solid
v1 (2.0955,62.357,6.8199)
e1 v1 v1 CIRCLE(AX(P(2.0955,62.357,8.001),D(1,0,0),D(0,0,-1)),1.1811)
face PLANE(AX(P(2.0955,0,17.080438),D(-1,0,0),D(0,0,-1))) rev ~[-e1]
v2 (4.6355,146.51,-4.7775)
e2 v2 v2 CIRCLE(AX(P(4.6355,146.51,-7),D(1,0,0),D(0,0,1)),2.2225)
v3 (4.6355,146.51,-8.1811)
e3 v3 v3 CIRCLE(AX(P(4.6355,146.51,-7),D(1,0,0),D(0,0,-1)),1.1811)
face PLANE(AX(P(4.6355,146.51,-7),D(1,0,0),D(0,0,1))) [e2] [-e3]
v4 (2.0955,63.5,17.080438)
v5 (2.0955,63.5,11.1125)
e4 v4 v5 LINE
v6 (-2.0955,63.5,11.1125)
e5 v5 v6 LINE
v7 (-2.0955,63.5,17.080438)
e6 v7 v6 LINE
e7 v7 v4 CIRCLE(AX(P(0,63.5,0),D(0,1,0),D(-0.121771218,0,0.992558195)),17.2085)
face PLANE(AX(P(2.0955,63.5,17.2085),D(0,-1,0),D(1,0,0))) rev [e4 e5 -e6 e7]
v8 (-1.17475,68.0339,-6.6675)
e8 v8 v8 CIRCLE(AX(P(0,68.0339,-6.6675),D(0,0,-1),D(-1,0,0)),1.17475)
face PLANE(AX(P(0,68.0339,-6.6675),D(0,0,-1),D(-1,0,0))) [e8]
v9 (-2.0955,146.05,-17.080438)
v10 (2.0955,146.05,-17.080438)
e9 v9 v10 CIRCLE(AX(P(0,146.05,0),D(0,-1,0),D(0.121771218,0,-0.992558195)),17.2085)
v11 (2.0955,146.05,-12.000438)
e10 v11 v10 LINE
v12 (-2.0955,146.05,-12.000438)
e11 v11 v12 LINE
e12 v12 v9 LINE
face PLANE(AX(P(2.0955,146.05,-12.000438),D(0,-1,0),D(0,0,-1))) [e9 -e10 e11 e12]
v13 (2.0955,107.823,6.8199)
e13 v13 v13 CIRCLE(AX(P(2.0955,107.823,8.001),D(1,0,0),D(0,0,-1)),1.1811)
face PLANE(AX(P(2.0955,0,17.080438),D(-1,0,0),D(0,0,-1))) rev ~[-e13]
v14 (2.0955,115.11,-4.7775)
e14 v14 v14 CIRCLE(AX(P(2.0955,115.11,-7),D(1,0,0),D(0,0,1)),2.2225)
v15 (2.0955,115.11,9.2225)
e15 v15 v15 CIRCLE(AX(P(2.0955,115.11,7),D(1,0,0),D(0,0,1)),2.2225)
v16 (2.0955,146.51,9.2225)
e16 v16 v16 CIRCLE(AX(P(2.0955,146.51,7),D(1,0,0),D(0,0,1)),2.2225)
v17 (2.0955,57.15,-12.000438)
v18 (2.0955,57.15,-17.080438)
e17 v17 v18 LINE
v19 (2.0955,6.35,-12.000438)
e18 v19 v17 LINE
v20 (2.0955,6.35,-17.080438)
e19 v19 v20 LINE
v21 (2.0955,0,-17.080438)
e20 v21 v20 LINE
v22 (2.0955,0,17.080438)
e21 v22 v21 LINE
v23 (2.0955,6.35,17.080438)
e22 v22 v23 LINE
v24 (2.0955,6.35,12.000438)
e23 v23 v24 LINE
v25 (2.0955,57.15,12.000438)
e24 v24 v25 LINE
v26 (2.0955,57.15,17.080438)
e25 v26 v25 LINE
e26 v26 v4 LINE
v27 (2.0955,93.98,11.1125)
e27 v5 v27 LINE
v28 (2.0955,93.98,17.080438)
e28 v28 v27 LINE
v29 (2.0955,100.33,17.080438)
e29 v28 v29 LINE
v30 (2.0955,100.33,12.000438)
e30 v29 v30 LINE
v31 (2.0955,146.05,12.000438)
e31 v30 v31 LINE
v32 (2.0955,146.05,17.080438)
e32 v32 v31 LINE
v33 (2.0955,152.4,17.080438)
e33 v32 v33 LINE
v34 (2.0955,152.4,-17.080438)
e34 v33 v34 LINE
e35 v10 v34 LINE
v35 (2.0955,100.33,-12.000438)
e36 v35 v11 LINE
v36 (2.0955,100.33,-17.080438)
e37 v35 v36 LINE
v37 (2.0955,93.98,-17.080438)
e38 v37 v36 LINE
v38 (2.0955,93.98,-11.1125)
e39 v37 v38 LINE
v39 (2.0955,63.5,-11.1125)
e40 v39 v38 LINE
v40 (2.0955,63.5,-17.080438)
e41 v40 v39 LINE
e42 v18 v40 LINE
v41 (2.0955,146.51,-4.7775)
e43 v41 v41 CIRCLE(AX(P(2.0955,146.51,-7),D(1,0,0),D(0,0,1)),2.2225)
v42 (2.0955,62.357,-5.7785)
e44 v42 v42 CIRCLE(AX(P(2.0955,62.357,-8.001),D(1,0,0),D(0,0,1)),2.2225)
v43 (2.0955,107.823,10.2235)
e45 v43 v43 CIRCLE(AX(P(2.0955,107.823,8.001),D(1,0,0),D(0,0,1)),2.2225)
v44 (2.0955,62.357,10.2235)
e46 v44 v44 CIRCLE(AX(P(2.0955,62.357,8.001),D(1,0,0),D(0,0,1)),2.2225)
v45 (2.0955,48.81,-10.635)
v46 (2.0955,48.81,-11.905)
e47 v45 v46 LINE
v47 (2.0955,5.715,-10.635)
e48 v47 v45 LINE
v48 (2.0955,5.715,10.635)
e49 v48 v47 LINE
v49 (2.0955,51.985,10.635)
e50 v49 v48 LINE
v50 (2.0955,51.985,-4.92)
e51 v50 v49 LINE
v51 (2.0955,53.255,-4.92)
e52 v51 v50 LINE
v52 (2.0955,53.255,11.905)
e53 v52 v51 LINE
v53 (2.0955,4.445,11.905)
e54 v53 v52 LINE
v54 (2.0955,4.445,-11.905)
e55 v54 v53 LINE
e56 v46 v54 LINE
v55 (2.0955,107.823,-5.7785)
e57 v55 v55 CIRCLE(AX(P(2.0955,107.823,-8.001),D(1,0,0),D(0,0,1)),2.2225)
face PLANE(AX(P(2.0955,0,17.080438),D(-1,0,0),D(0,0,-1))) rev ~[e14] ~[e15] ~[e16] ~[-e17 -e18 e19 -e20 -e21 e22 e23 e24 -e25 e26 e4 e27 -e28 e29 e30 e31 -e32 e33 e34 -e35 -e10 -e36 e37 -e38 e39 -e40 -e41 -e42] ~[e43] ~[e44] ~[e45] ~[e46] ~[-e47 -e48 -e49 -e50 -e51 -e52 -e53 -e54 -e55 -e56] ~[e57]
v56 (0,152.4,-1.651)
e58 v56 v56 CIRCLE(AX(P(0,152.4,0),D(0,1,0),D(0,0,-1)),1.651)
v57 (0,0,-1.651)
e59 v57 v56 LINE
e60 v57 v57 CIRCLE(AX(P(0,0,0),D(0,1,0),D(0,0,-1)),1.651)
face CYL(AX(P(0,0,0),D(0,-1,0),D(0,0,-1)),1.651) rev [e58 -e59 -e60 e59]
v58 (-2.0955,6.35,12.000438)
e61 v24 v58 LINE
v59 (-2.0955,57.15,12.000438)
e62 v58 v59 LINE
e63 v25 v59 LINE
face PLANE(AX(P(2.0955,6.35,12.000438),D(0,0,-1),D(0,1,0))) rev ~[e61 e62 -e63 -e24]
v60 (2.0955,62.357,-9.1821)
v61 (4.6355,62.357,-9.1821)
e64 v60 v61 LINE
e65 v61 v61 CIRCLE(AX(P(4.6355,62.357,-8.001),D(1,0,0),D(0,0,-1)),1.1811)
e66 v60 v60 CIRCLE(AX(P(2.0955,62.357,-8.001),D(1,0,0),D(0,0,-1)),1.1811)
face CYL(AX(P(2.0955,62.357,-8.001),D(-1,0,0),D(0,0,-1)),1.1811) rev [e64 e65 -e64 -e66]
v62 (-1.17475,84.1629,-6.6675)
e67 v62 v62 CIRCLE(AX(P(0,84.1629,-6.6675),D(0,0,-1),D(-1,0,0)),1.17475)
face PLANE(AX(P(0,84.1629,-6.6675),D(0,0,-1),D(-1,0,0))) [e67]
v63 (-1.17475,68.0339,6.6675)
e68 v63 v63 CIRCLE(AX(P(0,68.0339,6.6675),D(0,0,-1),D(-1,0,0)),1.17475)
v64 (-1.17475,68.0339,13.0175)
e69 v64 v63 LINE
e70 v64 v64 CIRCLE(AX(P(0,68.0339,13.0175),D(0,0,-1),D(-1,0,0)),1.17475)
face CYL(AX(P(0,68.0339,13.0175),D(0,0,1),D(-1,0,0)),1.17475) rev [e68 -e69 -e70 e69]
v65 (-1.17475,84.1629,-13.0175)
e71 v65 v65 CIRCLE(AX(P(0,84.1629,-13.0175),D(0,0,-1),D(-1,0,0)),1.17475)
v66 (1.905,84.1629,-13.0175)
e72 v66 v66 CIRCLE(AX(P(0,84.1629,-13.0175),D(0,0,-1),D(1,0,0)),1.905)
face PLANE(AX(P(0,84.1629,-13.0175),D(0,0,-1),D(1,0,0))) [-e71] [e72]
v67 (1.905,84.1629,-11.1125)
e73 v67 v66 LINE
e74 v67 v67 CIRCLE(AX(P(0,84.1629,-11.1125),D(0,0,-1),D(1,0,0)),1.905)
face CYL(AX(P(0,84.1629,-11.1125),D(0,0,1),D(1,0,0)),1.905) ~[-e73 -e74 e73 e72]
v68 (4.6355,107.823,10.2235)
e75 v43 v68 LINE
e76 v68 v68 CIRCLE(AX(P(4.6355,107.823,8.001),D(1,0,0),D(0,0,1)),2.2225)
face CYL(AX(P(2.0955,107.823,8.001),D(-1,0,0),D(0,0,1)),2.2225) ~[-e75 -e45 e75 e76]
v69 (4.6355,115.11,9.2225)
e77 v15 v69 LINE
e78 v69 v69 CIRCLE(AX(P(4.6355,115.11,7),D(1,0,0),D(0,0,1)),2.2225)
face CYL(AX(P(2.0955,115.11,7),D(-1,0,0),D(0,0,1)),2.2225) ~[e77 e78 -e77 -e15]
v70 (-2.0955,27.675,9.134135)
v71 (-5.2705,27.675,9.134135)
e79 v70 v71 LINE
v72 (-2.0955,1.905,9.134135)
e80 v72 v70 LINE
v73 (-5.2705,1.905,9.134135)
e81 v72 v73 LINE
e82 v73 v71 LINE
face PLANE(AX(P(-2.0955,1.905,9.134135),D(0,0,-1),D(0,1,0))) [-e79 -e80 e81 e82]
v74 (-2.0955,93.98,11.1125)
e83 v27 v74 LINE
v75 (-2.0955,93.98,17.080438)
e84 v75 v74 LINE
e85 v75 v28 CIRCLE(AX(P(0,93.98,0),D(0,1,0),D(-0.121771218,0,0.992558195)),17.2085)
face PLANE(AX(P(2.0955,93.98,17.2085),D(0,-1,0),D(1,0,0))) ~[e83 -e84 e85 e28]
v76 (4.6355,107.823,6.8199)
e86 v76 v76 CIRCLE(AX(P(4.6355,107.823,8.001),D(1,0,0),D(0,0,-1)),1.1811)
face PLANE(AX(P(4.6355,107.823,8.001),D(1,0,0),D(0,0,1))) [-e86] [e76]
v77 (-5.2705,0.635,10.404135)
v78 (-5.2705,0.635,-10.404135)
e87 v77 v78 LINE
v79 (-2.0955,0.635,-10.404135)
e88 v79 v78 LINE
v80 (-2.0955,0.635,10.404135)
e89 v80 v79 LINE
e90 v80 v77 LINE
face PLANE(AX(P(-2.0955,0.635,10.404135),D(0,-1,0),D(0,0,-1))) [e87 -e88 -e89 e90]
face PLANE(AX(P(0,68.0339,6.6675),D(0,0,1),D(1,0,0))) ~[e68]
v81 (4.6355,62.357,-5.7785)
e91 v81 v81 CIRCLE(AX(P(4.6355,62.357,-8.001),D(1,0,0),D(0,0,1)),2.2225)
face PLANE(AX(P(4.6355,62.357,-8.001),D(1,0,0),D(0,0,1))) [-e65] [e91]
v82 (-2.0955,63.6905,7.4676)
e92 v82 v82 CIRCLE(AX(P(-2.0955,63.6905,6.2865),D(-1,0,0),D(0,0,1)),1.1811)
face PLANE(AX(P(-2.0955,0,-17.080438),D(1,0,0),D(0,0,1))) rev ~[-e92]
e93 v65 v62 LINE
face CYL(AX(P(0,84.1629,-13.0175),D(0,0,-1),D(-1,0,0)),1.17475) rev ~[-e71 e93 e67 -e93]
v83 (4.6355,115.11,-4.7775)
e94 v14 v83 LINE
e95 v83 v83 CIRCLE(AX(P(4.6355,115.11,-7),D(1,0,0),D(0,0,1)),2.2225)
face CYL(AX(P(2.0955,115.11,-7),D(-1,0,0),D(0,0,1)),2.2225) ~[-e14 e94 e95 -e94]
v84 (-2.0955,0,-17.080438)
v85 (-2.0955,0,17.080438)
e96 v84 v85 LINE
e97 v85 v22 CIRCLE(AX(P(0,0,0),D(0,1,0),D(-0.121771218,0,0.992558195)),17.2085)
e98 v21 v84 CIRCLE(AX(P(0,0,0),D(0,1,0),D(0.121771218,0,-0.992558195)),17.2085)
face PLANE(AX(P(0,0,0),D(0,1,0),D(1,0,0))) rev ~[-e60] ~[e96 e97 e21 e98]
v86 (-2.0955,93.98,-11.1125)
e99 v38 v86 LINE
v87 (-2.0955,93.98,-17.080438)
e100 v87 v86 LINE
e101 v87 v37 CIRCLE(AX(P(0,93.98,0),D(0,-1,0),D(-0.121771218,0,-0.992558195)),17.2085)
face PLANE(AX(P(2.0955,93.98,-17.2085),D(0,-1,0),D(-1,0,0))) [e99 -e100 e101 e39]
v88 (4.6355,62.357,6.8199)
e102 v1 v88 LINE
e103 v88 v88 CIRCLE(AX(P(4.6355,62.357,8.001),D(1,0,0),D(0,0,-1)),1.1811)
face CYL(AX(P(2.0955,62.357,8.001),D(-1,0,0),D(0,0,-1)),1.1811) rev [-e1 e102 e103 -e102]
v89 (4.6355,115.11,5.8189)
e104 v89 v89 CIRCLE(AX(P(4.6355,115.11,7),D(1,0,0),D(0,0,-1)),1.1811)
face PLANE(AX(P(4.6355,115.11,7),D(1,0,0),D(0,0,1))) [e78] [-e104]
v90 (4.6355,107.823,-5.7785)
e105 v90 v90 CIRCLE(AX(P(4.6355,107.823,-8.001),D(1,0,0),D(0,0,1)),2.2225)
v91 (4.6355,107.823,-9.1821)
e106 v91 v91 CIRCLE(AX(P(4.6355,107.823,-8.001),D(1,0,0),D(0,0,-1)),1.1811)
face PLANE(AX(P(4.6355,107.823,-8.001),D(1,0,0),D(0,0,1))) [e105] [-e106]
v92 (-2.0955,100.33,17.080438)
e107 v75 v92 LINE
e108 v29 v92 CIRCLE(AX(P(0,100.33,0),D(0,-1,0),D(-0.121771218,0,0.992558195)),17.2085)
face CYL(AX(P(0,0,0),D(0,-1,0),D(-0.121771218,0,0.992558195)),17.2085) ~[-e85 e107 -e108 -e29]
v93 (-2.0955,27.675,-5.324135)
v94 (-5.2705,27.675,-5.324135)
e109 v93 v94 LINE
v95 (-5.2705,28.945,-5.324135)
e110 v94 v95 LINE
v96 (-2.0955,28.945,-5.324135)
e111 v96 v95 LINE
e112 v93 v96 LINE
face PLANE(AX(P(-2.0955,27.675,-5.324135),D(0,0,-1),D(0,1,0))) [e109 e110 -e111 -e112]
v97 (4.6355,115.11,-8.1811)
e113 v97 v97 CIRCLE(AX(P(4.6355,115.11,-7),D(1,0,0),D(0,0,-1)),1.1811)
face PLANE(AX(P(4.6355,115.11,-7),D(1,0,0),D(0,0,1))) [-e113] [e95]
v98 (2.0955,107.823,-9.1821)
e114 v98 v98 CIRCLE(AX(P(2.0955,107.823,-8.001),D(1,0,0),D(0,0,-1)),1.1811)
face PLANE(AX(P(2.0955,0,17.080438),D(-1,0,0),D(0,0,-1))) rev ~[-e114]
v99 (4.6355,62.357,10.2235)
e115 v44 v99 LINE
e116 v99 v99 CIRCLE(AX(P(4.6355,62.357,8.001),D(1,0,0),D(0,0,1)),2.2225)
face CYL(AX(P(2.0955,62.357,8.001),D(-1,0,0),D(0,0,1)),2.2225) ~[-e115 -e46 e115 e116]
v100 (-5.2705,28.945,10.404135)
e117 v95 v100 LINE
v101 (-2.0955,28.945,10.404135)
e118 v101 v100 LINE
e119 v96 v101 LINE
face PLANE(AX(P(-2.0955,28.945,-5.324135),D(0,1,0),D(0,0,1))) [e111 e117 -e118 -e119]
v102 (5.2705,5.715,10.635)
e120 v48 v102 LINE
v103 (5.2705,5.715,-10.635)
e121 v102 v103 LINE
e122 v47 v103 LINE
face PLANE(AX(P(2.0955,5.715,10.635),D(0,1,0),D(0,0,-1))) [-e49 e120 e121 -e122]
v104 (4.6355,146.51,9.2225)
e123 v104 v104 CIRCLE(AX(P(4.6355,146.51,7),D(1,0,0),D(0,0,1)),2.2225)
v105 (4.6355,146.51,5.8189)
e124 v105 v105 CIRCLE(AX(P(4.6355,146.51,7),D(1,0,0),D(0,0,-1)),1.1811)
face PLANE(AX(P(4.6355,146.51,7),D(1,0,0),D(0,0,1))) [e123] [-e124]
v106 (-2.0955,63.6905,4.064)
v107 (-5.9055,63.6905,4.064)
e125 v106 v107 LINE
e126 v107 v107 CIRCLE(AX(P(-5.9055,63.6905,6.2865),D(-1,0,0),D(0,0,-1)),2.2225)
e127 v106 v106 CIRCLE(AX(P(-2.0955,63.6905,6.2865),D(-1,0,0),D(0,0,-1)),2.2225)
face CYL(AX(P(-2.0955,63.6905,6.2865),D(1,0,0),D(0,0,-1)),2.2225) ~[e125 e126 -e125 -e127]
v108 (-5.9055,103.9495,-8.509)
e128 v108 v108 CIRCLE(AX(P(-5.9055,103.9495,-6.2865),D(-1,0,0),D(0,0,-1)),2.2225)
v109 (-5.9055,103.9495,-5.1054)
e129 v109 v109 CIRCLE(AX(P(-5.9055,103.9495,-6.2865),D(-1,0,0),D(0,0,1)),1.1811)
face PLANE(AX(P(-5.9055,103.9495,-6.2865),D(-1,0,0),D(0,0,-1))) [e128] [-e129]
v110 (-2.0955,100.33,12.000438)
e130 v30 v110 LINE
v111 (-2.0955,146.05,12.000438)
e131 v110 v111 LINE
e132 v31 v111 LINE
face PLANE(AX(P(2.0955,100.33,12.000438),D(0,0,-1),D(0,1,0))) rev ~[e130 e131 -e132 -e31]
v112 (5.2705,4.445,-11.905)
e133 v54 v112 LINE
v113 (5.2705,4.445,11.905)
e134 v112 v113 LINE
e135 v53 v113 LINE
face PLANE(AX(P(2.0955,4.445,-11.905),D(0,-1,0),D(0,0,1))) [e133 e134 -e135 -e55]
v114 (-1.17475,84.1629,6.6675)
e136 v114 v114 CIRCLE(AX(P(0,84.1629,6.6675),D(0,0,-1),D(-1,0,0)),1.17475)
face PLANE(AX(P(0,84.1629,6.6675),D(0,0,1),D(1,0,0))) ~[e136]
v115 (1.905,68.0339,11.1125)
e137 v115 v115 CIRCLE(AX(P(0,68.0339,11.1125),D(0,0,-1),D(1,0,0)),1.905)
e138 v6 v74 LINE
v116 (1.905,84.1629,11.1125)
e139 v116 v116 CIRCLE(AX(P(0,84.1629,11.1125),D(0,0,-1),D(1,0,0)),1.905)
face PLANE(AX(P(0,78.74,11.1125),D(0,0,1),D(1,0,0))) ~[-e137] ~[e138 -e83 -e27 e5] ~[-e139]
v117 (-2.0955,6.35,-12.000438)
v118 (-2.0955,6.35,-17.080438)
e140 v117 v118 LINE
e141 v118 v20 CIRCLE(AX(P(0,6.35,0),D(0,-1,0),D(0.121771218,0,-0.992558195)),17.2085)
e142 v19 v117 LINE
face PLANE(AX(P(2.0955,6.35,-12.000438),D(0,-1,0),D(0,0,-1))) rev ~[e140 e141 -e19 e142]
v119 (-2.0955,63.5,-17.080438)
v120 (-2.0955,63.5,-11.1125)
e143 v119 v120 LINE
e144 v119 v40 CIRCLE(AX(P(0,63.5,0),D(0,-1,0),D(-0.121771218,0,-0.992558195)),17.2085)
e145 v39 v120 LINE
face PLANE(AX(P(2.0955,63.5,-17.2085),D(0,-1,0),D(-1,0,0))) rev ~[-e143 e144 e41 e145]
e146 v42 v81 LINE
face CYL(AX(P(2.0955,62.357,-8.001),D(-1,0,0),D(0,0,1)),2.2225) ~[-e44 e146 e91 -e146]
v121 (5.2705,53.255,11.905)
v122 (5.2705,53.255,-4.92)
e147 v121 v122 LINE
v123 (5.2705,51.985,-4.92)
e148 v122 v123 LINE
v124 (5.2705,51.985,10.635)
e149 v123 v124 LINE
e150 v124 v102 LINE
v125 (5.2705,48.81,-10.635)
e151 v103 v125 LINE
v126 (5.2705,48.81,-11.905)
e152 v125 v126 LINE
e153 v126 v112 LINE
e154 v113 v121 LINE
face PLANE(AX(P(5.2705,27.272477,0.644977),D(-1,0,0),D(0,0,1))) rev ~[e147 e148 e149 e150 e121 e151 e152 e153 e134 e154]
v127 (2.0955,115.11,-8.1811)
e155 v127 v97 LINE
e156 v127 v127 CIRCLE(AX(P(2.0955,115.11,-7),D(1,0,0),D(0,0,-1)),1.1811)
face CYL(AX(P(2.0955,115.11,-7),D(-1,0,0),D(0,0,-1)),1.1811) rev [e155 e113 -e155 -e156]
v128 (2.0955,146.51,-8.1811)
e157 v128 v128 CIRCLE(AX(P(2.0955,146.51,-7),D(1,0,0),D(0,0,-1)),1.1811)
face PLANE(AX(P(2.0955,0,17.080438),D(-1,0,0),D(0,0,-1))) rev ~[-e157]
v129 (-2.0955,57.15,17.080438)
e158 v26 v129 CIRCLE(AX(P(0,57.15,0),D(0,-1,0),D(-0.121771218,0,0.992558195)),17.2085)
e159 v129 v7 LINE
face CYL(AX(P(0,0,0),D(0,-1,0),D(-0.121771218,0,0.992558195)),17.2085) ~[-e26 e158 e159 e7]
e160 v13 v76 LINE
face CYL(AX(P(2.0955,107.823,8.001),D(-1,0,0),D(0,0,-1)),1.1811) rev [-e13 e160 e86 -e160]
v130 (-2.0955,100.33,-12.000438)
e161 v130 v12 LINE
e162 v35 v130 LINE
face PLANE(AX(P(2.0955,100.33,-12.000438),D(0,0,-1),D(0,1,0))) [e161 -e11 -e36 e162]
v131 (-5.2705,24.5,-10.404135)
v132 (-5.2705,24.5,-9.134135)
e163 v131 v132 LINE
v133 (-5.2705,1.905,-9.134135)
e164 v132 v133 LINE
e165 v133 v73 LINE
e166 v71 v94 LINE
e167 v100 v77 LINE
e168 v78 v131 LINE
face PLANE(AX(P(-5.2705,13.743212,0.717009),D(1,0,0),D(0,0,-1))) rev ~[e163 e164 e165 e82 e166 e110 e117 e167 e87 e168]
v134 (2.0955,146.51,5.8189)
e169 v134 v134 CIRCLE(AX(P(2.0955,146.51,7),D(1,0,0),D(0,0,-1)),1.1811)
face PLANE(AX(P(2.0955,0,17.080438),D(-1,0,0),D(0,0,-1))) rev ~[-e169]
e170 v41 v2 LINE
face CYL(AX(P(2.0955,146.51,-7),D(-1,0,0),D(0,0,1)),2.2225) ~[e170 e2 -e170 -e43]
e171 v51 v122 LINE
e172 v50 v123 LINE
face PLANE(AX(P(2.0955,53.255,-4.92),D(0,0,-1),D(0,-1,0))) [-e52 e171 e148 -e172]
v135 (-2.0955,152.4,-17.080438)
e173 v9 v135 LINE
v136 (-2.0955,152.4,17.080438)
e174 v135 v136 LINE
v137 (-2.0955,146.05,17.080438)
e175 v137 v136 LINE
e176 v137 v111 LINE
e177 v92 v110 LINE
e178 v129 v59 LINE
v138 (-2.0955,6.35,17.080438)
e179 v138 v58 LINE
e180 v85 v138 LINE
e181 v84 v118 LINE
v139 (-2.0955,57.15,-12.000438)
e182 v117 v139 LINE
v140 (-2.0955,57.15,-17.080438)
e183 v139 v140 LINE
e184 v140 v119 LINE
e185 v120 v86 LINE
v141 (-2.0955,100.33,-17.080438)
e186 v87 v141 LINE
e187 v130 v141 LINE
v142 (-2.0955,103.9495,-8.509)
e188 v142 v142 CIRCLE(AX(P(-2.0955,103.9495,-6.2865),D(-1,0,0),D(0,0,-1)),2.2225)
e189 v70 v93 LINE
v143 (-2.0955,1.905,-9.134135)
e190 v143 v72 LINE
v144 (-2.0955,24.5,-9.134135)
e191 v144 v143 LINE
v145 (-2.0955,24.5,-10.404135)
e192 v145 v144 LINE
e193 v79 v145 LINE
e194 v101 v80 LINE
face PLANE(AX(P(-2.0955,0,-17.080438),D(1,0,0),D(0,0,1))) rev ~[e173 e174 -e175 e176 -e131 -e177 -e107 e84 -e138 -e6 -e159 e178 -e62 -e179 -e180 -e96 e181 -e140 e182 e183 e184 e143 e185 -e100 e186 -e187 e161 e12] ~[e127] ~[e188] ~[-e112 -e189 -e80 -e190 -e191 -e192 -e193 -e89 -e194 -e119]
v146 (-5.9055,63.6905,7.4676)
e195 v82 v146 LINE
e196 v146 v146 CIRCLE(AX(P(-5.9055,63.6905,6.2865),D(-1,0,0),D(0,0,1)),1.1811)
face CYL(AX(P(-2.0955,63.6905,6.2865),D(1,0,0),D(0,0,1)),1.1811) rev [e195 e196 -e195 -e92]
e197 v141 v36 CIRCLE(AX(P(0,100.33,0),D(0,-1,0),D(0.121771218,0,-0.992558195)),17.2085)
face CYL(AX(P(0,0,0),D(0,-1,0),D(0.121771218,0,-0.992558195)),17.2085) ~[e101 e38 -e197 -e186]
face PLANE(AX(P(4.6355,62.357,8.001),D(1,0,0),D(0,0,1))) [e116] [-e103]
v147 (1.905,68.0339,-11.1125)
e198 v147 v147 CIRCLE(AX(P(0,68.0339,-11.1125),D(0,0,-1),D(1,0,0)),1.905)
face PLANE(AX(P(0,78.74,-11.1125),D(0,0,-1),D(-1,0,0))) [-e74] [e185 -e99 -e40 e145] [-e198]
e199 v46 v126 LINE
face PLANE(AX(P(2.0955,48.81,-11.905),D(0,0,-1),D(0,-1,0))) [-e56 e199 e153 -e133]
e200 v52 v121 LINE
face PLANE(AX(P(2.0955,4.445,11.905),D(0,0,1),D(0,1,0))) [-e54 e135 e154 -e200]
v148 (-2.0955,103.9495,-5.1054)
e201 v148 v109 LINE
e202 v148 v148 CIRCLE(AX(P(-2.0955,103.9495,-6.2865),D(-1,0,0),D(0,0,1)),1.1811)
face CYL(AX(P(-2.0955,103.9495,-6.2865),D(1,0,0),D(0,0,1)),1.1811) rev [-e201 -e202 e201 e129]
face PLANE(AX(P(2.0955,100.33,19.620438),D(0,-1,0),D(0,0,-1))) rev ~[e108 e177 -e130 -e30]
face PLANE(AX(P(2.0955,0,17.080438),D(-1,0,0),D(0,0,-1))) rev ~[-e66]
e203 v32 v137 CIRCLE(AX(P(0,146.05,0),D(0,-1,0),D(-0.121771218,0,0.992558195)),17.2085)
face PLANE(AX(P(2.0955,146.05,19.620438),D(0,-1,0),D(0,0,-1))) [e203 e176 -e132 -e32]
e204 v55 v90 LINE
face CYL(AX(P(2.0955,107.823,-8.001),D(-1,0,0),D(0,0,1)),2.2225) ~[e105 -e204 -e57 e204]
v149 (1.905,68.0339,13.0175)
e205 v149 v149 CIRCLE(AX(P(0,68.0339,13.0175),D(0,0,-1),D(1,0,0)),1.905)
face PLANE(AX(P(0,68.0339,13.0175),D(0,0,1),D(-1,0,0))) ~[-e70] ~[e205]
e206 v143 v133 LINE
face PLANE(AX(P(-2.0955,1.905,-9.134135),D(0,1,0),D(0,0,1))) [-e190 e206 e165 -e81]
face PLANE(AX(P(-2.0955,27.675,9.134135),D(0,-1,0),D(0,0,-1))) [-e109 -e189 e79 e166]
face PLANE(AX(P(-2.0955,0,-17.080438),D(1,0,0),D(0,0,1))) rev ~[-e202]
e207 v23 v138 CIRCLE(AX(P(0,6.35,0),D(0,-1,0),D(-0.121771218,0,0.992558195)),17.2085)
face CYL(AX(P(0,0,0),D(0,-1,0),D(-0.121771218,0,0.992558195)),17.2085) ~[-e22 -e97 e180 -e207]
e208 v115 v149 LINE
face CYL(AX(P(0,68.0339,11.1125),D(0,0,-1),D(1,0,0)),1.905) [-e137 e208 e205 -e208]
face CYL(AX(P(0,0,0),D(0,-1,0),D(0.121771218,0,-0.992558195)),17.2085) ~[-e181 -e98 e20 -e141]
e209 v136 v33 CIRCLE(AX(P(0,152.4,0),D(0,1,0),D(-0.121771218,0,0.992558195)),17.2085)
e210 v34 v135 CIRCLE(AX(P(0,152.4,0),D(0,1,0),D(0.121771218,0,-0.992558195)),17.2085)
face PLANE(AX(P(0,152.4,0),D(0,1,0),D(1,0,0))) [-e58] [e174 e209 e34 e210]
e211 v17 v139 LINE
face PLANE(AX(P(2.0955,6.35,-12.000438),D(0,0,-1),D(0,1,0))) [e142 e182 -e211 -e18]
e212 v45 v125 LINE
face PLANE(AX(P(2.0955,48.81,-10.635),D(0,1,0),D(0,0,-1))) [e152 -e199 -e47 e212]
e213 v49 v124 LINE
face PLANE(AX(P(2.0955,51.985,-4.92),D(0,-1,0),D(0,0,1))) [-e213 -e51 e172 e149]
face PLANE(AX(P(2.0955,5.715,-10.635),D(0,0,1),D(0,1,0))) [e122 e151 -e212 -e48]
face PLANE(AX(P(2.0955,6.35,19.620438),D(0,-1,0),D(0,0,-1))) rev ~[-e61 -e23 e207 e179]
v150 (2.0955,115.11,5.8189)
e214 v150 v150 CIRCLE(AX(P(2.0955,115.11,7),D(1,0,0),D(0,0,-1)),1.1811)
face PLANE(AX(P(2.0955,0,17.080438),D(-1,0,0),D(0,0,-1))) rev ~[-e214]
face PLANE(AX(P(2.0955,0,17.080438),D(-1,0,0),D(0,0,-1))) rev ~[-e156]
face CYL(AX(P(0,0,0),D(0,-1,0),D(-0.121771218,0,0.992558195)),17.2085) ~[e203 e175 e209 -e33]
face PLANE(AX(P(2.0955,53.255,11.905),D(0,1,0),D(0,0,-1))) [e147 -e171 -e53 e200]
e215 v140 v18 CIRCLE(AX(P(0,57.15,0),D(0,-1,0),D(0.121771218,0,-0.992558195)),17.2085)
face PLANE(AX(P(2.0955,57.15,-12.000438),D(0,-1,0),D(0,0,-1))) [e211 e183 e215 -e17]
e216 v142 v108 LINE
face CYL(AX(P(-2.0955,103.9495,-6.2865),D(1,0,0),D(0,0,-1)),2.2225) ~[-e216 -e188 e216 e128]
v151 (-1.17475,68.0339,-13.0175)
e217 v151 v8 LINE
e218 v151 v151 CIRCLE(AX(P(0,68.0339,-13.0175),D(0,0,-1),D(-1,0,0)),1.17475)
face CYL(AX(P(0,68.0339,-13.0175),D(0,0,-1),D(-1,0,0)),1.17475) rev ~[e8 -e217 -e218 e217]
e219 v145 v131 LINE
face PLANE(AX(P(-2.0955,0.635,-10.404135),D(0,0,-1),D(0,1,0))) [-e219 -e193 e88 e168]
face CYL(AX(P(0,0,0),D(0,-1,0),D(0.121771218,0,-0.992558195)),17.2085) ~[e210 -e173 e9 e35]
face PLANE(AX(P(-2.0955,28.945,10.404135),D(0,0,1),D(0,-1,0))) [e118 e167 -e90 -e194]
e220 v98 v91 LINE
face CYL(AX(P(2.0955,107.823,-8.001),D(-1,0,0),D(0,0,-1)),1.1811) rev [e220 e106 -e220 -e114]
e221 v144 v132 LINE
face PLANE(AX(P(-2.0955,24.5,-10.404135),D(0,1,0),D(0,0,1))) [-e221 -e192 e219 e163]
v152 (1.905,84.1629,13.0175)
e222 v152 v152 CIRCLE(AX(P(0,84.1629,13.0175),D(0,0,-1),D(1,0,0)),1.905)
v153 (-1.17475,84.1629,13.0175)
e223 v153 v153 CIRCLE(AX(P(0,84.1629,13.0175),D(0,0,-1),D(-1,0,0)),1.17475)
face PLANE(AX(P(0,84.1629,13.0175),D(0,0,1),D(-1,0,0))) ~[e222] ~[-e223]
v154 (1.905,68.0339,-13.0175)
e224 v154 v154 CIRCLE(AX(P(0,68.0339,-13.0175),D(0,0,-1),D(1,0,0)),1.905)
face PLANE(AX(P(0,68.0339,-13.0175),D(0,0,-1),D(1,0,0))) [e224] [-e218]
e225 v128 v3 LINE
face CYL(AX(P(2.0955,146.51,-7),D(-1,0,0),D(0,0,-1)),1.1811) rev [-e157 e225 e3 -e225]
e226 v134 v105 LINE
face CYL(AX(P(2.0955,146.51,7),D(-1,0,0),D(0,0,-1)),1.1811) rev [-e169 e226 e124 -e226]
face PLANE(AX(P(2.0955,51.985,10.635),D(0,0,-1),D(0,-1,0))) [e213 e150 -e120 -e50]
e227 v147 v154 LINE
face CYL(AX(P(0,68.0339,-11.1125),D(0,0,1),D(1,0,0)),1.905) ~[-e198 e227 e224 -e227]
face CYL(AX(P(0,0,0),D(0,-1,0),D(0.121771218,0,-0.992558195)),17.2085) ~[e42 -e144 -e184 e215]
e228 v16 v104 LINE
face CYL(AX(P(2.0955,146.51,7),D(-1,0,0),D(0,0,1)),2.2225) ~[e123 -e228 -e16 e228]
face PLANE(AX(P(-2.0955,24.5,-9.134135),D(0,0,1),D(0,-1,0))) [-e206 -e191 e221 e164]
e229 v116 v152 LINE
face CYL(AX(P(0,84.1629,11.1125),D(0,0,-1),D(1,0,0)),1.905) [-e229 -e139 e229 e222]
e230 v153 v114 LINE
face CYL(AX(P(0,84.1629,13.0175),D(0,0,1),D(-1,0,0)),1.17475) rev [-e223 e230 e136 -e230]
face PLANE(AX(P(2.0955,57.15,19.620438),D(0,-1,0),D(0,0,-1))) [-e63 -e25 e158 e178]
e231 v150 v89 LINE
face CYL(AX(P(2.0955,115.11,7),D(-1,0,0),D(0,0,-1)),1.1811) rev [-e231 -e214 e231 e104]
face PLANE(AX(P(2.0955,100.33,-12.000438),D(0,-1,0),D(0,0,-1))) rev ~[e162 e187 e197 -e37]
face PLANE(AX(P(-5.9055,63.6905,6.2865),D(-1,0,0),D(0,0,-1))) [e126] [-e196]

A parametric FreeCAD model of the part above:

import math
import FreeCAD as App
import Part
import Sketcher

V = App.Vector
Q = App.Units.Quantity

doc = App.newDocument("Part")
body = doc.addObject("PartDesign::Body", "Body")

# Sketch on XZ plane
sketch1 = body.newObject("Sketcher::SketchObject", "Sketch")
sketch1.AttachmentSupport = (doc.getObject("XZ_Plane"), [""])
sketch1.MapMode = "FlatFace"
sketch1.addGeometry([
    Part.LineSegment(V(2.0955, 17.080438, 0), V(2.0955, -17.080438, 0)),  # 0
    Part.ArcOfCircle(Part.Circle(V(0, 0, 0), V(0, 0, 1), 17.2085), math.radians(-96.994336), math.radians(-83.005664)),  # 1
    Part.LineSegment(V(-2.0955, -17.080438, 0), V(-2.0955, 17.080438, 0)),  # 2
    Part.ArcOfCircle(Part.Circle(V(0, 0, 0), V(0, 0, 1), 17.2085), math.radians(83.005664), math.radians(96.994336)),  # 3
    Part.Circle(V(0, 0, 0), V(0, 0, 1), 1.651),  # 4
], False)
sketch1.addConstraint([
    Sketcher.Constraint("Coincident", 0, 2, 1, 2),
    Sketcher.Constraint("Coincident", 1, 1, 2, 1),
    Sketcher.Constraint("Coincident", 2, 2, 3, 2),
    Sketcher.Constraint("Coincident", 3, 1, 0, 1),
    Sketcher.Constraint("Vertical", 0),
    Sketcher.Constraint("Vertical", 2),
    Sketcher.Constraint("Coincident", 1, 3, -1, 1),
    Sketcher.Constraint("Coincident", 3, 3, -1, 1),
    Sketcher.Constraint("Coincident", 4, 3, -1, 1),
    Sketcher.Constraint("Equal", 1, 3),
    Sketcher.Constraint("Horizontal", 0, 2, 1, 1),
    Sketcher.Constraint("Diameter", 4, Q("0.13 in")),
    Sketcher.Constraint("Radius", 1, Q("0.6775 in")),
    Sketcher.Constraint("DistanceX", 1, 1, 0, 2, Q("0.165 in")),
])
pad1 = body.newObject("PartDesign::Pad", "Pad")
pad1.Profile = sketch1
pad1.Length = Q("6 in")
pad1.Reversed = True

# Sketch on XY plane
sketch2 = body.newObject("Sketcher::SketchObject", "Sketch001")
sketch2.AttachmentSupport = (doc.getObject("XY_Plane"), [""])
sketch2.MapMode = "FlatFace"
sketch2.AttachmentOffset = App.Placement(V(0, 0, -0.6775 * 25.4), App.Rotation())
sketch2.addGeometry([
    Part.LineSegment(V(2.0955, 93.98, 0), V(2.0955, 63.5, 0)),
    Part.LineSegment(V(2.0955, 63.5, 0), V(-2.0955, 63.5, 0)),
    Part.LineSegment(V(-2.0955, 63.5, 0), V(-2.0955, 93.98, 0)),
    Part.LineSegment(V(-2.0955, 93.98, 0), V(2.0955, 93.98, 0)),
], False)
sketch2.addConstraint([
    Sketcher.Constraint("Coincident", 0, 2, 1, 1),
    Sketcher.Constraint("Coincident", 1, 2, 2, 1),
    Sketcher.Constraint("Coincident", 2, 2, 3, 1),
    Sketcher.Constraint("Coincident", 3, 2, 0, 1),
    Sketcher.Constraint("Vertical", 0),
    Sketcher.Constraint("Horizontal", 1),
    Sketcher.Constraint("Vertical", 2),
    Sketcher.Constraint("Horizontal", 3),
    Sketcher.Constraint("DistanceY", 0, 2, 0, 1, Q("1.2 in")),
    Sketcher.Constraint("DistanceY", -1, 1, 0, 2, Q("2.5 in")),
    Sketcher.Constraint("DistanceX", 1, 2, 1, 1, Q("0.165 in")),
    Sketcher.Constraint("DistanceX", -1, 1, 0, 2, Q("0.0825 in")),
])
pocket1 = body.newObject("PartDesign::Pocket", "Pocket")
pocket1.Profile = sketch2
pocket1.Length = Q("0.24 in")
pocket1.Reversed = True

# Sketch on XY plane
sketch3 = body.newObject("Sketcher::SketchObject", "Sketch002")
sketch3.AttachmentSupport = (doc.getObject("XY_Plane"), [""])
sketch3.MapMode = "FlatFace"
sketch3.AttachmentOffset = App.Placement(V(0, 0, -0.4375 * 25.4), App.Rotation())
sketch3.addGeometry([
    Part.Circle(V(0, 68.0339, 0), V(0, 0, 1), 1.905),
    Part.Circle(V(0, 84.1629, 0), V(0, 0, 1), 1.905),
], False)
sketch3.addConstraint([
    Sketcher.Constraint("Equal", 0, 1),
    Sketcher.Constraint("PointOnObject", 0, 3, -2),
    Sketcher.Constraint("PointOnObject", 1, 3, -2),
    Sketcher.Constraint("Diameter", 0, Q("0.15 in")),
    Sketcher.Constraint("DistanceY", 0, 3, 1, 3, Q("0.635 in")),
    Sketcher.Constraint("DistanceY", -1, 1, 0, 3, Q("2.6785 in")),
])
pad2 = body.newObject("PartDesign::Pad", "Pad001")
pad2.Profile = sketch3
pad2.Length = Q("0.075 in")
pad2.Reversed = True

# Sketch on XY plane
sketch4 = body.newObject("Sketcher::SketchObject", "Sketch003")
sketch4.AttachmentSupport = (doc.getObject("XY_Plane"), [""])
sketch4.MapMode = "FlatFace"
sketch4.AttachmentOffset = App.Placement(V(0, 0, -0.5125 * 25.4), App.Rotation())
sketch4.addGeometry([
    Part.Circle(V(0, 84.1629, 0), V(0, 0, 1), 1.17475),
    Part.Circle(V(0, 68.0339, 0), V(0, 0, 1), 1.17475),
], False)
sketch4.addConstraint([
    Sketcher.Constraint("Equal", 0, 1),
    Sketcher.Constraint("PointOnObject", 0, 3, -2),
    Sketcher.Constraint("PointOnObject", 1, 3, -2),
    Sketcher.Constraint("Diameter", 0, Q("0.0925 in")),
    Sketcher.Constraint("DistanceY", 1, 3, 0, 3, Q("0.635 in")),
    Sketcher.Constraint("DistanceY", -1, 1, 0, 3, Q("3.3135 in")),
])
pocket2 = body.newObject("PartDesign::Pocket", "Pocket001")
pocket2.Profile = sketch4
pocket2.Length = Q("0.25 in")
pocket2.Reversed = True
doc.recompute()

mirrored = body.newObject("PartDesign::Mirrored", "Mirrored")
mirrored.Originals = [pocket1, pad2, pocket2]
mirrored.MirrorPlane = (doc.getObject("XY_Plane"), [""])
body.Tip = mirrored

# Sketch on YZ plane
sketch5 = body.newObject("Sketcher::SketchObject", "Sketch004")
sketch5.AttachmentSupport = (doc.getObject("YZ_Plane"), [""])
sketch5.MapMode = "FlatFace"
sketch5.AttachmentOffset = App.Placement(V(0, 0, 0.0825 * 25.4), App.Rotation())
sketch5.addGeometry([
    Part.Circle(V(62.357, -8.001, 0), V(0, 0, 1), 2.2225),  # 0
    Part.Circle(V(62.357, -8.001, 0), V(0, 0, 1), 1.1811),  # 1
    Part.Circle(V(62.357, 8.001, 0), V(0, 0, 1), 2.2225),  # 2
    Part.Circle(V(62.357, 8.001, 0), V(0, 0, 1), 1.1811),  # 3
    Part.Circle(V(107.823, 8.001, 0), V(0, 0, 1), 2.2225),  # 4
    Part.Circle(V(107.823, 8.001, 0), V(0, 0, 1), 1.1811),  # 5
    Part.Circle(V(107.823, -8.001, 0), V(0, 0, 1), 2.2225),  # 6
    Part.Circle(V(107.823, -8.001, 0), V(0, 0, 1), 1.1811),  # 7
], False)
sketch5.addConstraint([
    Sketcher.Constraint("Coincident", 1, 3, 0, 3),
    Sketcher.Constraint("Coincident", 3, 3, 2, 3),
    Sketcher.Constraint("Coincident", 5, 3, 4, 3),
    Sketcher.Constraint("Coincident", 7, 3, 6, 3),
    Sketcher.Constraint("Equal", 0, 2),
    Sketcher.Constraint("Equal", 1, 3),
    Sketcher.Constraint("Equal", 2, 4),
    Sketcher.Constraint("Equal", 3, 5),
    Sketcher.Constraint("Equal", 4, 6),
    Sketcher.Constraint("Equal", 5, 7),
    Sketcher.Constraint("Symmetric", 0, 3, 2, 3, -1),
    Sketcher.Constraint("Symmetric", 4, 3, 6, 3, -1),
    Sketcher.Constraint("Horizontal", 3, 3, 4, 3),
    Sketcher.Constraint("Diameter", 0, Q("0.175 in")),
    Sketcher.Constraint("Diameter", 1, Q("0.093 in")),
    Sketcher.Constraint("DistanceY", 0, 3, 2, 3, Q("0.63 in")),
    Sketcher.Constraint("DistanceX", 2, 3, 4, 3, Q("1.79 in")),
    Sketcher.Constraint("DistanceX", -1, 1, 0, 3, Q("2.455 in")),
])
pad3 = body.newObject("PartDesign::Pad", "Pad002")
pad3.Profile = sketch5
pad3.Length = Q("0.1 in")

# Sketch on YZ plane
sketch6 = body.newObject("Sketcher::SketchObject", "Sketch005")
sketch6.AttachmentSupport = (doc.getObject("YZ_Plane"), [""])
sketch6.MapMode = "FlatFace"
sketch6.AttachmentOffset = App.Placement(V(0, 0, 0.0825 * 25.4), App.Rotation())
sketch6.addGeometry([
    Part.Circle(V(115.11, -7, 0), V(0, 0, 1), 2.2225),  # 0
    Part.Circle(V(115.11, -7, 0), V(0, 0, 1), 1.1811),  # 1
    Part.Circle(V(115.11, 7, 0), V(0, 0, 1), 2.2225),  # 2
    Part.Circle(V(115.11, 7, 0), V(0, 0, 1), 1.1811),  # 3
    Part.Circle(V(146.51, 7, 0), V(0, 0, 1), 2.2225),  # 4
    Part.Circle(V(146.51, 7, 0), V(0, 0, 1), 1.1811),  # 5
    Part.Circle(V(146.51, -7, 0), V(0, 0, 1), 2.2225),  # 6
    Part.Circle(V(146.51, -7, 0), V(0, 0, 1), 1.1811),  # 7
], False)
sketch6.addConstraint([
    Sketcher.Constraint("Coincident", 1, 3, 0, 3),
    Sketcher.Constraint("Coincident", 3, 3, 2, 3),
    Sketcher.Constraint("Coincident", 5, 3, 4, 3),
    Sketcher.Constraint("Coincident", 7, 3, 6, 3),
    Sketcher.Constraint("Equal", 0, 2),
    Sketcher.Constraint("Equal", 1, 3),
    Sketcher.Constraint("Equal", 2, 4),
    Sketcher.Constraint("Equal", 3, 5),
    Sketcher.Constraint("Equal", 4, 6),
    Sketcher.Constraint("Equal", 5, 7),
    Sketcher.Constraint("Symmetric", 0, 3, 2, 3, -1),
    Sketcher.Constraint("Symmetric", 4, 3, 6, 3, -1),
    Sketcher.Constraint("Horizontal", 3, 3, 4, 3),
    Sketcher.Constraint("Diameter", 0, Q("0.175 in")),
    Sketcher.Constraint("Diameter", 1, Q("0.093 in")),
    Sketcher.Constraint("DistanceX", -1, 1, 0, 3, Q("115.11 mm")),
    Sketcher.Constraint("DistanceY", 0, 3, -1, 1, Q("7 mm")),
    Sketcher.Constraint("DistanceX", -1, 1, 4, 3, Q("146.51 mm")),
])
pad4 = body.newObject("PartDesign::Pad", "Pad003")
pad4.Profile = sketch6
pad4.Length = Q("0.1 in")

# Sketch on YZ plane
sketch7 = body.newObject("Sketcher::SketchObject", "Sketch006")
sketch7.AttachmentSupport = (doc.getObject("YZ_Plane"), [""])
sketch7.MapMode = "FlatFace"
sketch7.AttachmentOffset = App.Placement(V(0, 0, 0.0825 * 25.4), App.Rotation())
sketch7.addGeometry([
    Part.LineSegment(V(57.15, -12.000438, 0), V(6.35, -12.000438, 0)),  # 0
    Part.LineSegment(V(6.35, -12.000438, 0), V(6.35, -19.620438, 0)),  # 1
    Part.LineSegment(V(6.35, -19.620438, 0), V(57.15, -19.620438, 0)),  # 2
    Part.LineSegment(V(57.15, -19.620438, 0), V(57.15, -12.000438, 0)),  # 3
    Part.LineSegment(V(57.15, 19.620438, 0), V(6.35, 19.620438, 0)),  # 4
    Part.LineSegment(V(6.35, 19.620438, 0), V(6.35, 12.000438, 0)),  # 5
    Part.LineSegment(V(6.35, 12.000438, 0), V(57.15, 12.000438, 0)),  # 6
    Part.LineSegment(V(57.15, 12.000438, 0), V(57.15, 19.620438, 0)),  # 7
    Part.LineSegment(V(146.05, 19.620438, 0), V(100.33, 19.620438, 0)),  # 8
    Part.LineSegment(V(100.33, 19.620438, 0), V(100.33, 12.000438, 0)),  # 9
    Part.LineSegment(V(100.33, 12.000438, 0), V(146.05, 12.000438, 0)),  # 10
    Part.LineSegment(V(146.05, 12.000438, 0), V(146.05, 19.620438, 0)),  # 11
    Part.LineSegment(V(146.05, -12.000438, 0), V(100.33, -12.000438, 0)),  # 12
    Part.LineSegment(V(100.33, -12.000438, 0), V(100.33, -19.620438, 0)),  # 13
    Part.LineSegment(V(100.33, -19.620438, 0), V(146.05, -19.620438, 0)),  # 14
    Part.LineSegment(V(146.05, -19.620438, 0), V(146.05, -12.000438, 0)),  # 15
], False)
sketch7.addConstraint([
    Sketcher.Constraint("Coincident", 0, 2, 1, 1),
    Sketcher.Constraint("Coincident", 1, 2, 2, 1),
    Sketcher.Constraint("Coincident", 2, 2, 3, 1),
    Sketcher.Constraint("Coincident", 3, 2, 0, 1),
    Sketcher.Constraint("Coincident", 4, 2, 5, 1),
    Sketcher.Constraint("Coincident", 5, 2, 6, 1),
    Sketcher.Constraint("Coincident", 6, 2, 7, 1),
    Sketcher.Constraint("Coincident", 7, 2, 4, 1),
    Sketcher.Constraint("Coincident", 8, 2, 9, 1),
    Sketcher.Constraint("Coincident", 9, 2, 10, 1),
    Sketcher.Constraint("Coincident", 10, 2, 11, 1),
    Sketcher.Constraint("Coincident", 11, 2, 8, 1),
    Sketcher.Constraint("Coincident", 12, 2, 13, 1),
    Sketcher.Constraint("Coincident", 13, 2, 14, 1),
    Sketcher.Constraint("Coincident", 14, 2, 15, 1),
    Sketcher.Constraint("Coincident", 15, 2, 12, 1),
    Sketcher.Constraint("Horizontal", 0),
    Sketcher.Constraint("Vertical", 1),
    Sketcher.Constraint("Horizontal", 2),
    Sketcher.Constraint("Vertical", 3),
    Sketcher.Constraint("Horizontal", 4),
    Sketcher.Constraint("Vertical", 5),
    Sketcher.Constraint("Horizontal", 6),
    Sketcher.Constraint("Vertical", 7),
    Sketcher.Constraint("Horizontal", 8),
    Sketcher.Constraint("Vertical", 9),
    Sketcher.Constraint("Horizontal", 10),
    Sketcher.Constraint("Vertical", 11),
    Sketcher.Constraint("Horizontal", 12),
    Sketcher.Constraint("Vertical", 13),
    Sketcher.Constraint("Horizontal", 14),
    Sketcher.Constraint("Vertical", 15),
    Sketcher.Constraint("Symmetric", 1, 2, 4, 2, -1),
    Sketcher.Constraint("Symmetric", 3, 2, 6, 2, -1),
    Sketcher.Constraint("Symmetric", 9, 2, 12, 2, -1),
    Sketcher.Constraint("Symmetric", 11, 2, 14, 2, -1),
    Sketcher.Constraint("Horizontal", 7, 2, 8, 2),
    Sketcher.Constraint("Horizontal", 6, 2, 9, 2),
    Sketcher.Constraint("DistanceX", 0, 2, 0, 1, Q("2 in")),
    Sketcher.Constraint("DistanceX", 8, 2, 8, 1, Q("1.8 in")),
    Sketcher.Constraint("DistanceY", 1, 2, 1, 1, Q("0.3 in")),
    Sketcher.Constraint("DistanceX", 7, 2, 8, 2, Q("1.7 in")),
    Sketcher.Constraint("DistanceX", -1, 1, 0, 2, Q("0.25 in")),
    Sketcher.Constraint("DistanceY", 0, 2, -1, 1, Q("12.000438 mm")),
])
pocket3 = body.newObject("PartDesign::Pocket", "Pocket002")
pocket3.Profile = sketch7
pocket3.Type = "ThroughAll"

# Sketch on YZ plane
sketch8 = body.newObject("Sketcher::SketchObject", "Sketch007")
sketch8.AttachmentSupport = (doc.getObject("YZ_Plane"), [""])
sketch8.MapMode = "FlatFace"
sketch8.AttachmentOffset = App.Placement(V(0, 0, -0.0825 * 25.4), App.Rotation())
sketch8.addGeometry([
    Part.Circle(V(103.9495, -6.2865, 0), V(0, 0, 1), 2.2225),
    Part.Circle(V(103.9495, -6.2865, 0), V(0, 0, 1), 1.1811),
    Part.Circle(V(63.6905, 6.2865, 0), V(0, 0, 1), 2.2225),
    Part.Circle(V(63.6905, 6.2865, 0), V(0, 0, 1), 1.1811),
], False)
sketch8.addConstraint([
    Sketcher.Constraint("Coincident", 1, 3, 0, 3),
    Sketcher.Constraint("Coincident", 3, 3, 2, 3),
    Sketcher.Constraint("Equal", 0, 2),
    Sketcher.Constraint("Equal", 1, 3),
    Sketcher.Constraint("Diameter", 0, Q("0.175 in")),
    Sketcher.Constraint("Diameter", 1, Q("0.093 in")),
    Sketcher.Constraint("DistanceX", 2, 3, 0, 3, Q("1.585 in")),
    Sketcher.Constraint("DistanceY", 0, 3, 2, 3, Q("0.495 in")),
    Sketcher.Constraint("DistanceX", -1, 1, 0, 3, Q("4.0925 in")),
    Sketcher.Constraint("DistanceY", 0, 3, -1, 1, Q("0.2475 in")),
])
pad5 = body.newObject("PartDesign::Pad", "Pad004")
pad5.Profile = sketch8
pad5.Length = Q("0.15 in")
pad5.Reversed = True

# Sketch on YZ plane
sketch9 = body.newObject("Sketcher::SketchObject", "Sketch008")
sketch9.AttachmentSupport = (doc.getObject("YZ_Plane"), [""])
sketch9.MapMode = "FlatFace"
sketch9.AttachmentOffset = App.Placement(V(0, 0, -0.0825 * 25.4), App.Rotation())
sketch9.addGeometry([
    Part.LineSegment(V(1.905, 9.134135, 0), V(1.905, -9.134135, 0)),  # 0
    Part.LineSegment(V(1.905, -9.134135, 0), V(24.5, -9.134135, 0)),  # 1
    Part.LineSegment(V(24.5, -9.134135, 0), V(24.5, -10.404135, 0)),  # 2
    Part.LineSegment(V(24.5, -10.404135, 0), V(0.635, -10.404135, 0)),  # 3
    Part.LineSegment(V(0.635, -10.404135, 0), V(0.635, 10.404135, 0)),  # 4
    Part.LineSegment(V(0.635, 10.404135, 0), V(28.945, 10.404135, 0)),  # 5
    Part.LineSegment(V(28.945, 10.404135, 0), V(28.945, -5.324135, 0)),  # 6
    Part.LineSegment(V(28.945, -5.324135, 0), V(27.675, -5.324135, 0)),  # 7
    Part.LineSegment(V(27.675, -5.324135, 0), V(27.675, 9.134135, 0)),  # 8
    Part.LineSegment(V(27.675, 9.134135, 0), V(1.905, 9.134135, 0)),  # 9
], False)
sketch9.addConstraint([
    Sketcher.Constraint("Coincident", 0, 2, 1, 1),
    Sketcher.Constraint("Coincident", 1, 2, 2, 1),
    Sketcher.Constraint("Coincident", 2, 2, 3, 1),
    Sketcher.Constraint("Coincident", 3, 2, 4, 1),
    Sketcher.Constraint("Coincident", 4, 2, 5, 1),
    Sketcher.Constraint("Coincident", 5, 2, 6, 1),
    Sketcher.Constraint("Coincident", 6, 2, 7, 1),
    Sketcher.Constraint("Coincident", 7, 2, 8, 1),
    Sketcher.Constraint("Coincident", 8, 2, 9, 1),
    Sketcher.Constraint("Coincident", 9, 2, 0, 1),
    Sketcher.Constraint("Vertical", 0),
    Sketcher.Constraint("Horizontal", 1),
    Sketcher.Constraint("Vertical", 2),
    Sketcher.Constraint("Horizontal", 3),
    Sketcher.Constraint("Vertical", 4),
    Sketcher.Constraint("Horizontal", 5),
    Sketcher.Constraint("Vertical", 6),
    Sketcher.Constraint("Horizontal", 7),
    Sketcher.Constraint("Vertical", 8),
    Sketcher.Constraint("Horizontal", 9),
    Sketcher.Constraint("Equal", 7, 2),
    Sketcher.Constraint("DistanceX", 7, 2, 7, 1, Q("0.05 in")),
    Sketcher.Constraint("DistanceY", 2, 2, 6, 2, Q("0.2 in")),
    Sketcher.Constraint("DistanceX", 3, 2, 0, 2, Q("0.05 in")),
    Sketcher.Constraint("DistanceY", 8, 2, 5, 2, Q("0.05 in")),
    Sketcher.Constraint("DistanceX", -1, 1, 0, 2, Q("0.075 in")),
    Sketcher.Constraint("DistanceX", 1, 2, 5, 2, Q("0.175 in")),
    Sketcher.Constraint("DistanceX", 1, 1, 1, 2, Q("22.595 mm")),
    Sketcher.Constraint("DistanceY", 0, 2, 0, 1, Q("18.26827 mm")),
    Sketcher.Constraint("DistanceY", 0, 2, -1, 1, Q("9.134135 mm")),
])
pad6 = body.newObject("PartDesign::Pad", "Pad005")
pad6.Profile = sketch9
pad6.Length = Q("0.125 in")
pad6.Reversed = True

# Sketch on YZ plane
sketch10 = body.newObject("Sketcher::SketchObject", "Sketch009")
sketch10.AttachmentSupport = (doc.getObject("YZ_Plane"), [""])
sketch10.MapMode = "FlatFace"
sketch10.AttachmentOffset = App.Placement(V(0, 0, 0.0825 * 25.4), App.Rotation())
sketch10.addGeometry([
    Part.LineSegment(V(5.715, -10.635, 0), V(5.715, 10.635, 0)),  # 0
    Part.LineSegment(V(5.715, 10.635, 0), V(51.985, 10.635, 0)),  # 1
    Part.LineSegment(V(51.985, 10.635, 0), V(51.985, -4.92, 0)),  # 2
    Part.LineSegment(V(51.985, -4.92, 0), V(53.255, -4.92, 0)),  # 3
    Part.LineSegment(V(53.255, -4.92, 0), V(53.255, 11.905, 0)),  # 4
    Part.LineSegment(V(53.255, 11.905, 0), V(4.445, 11.905, 0)),  # 5
    Part.LineSegment(V(4.445, 11.905, 0), V(4.445, -11.905, 0)),  # 6
    Part.LineSegment(V(4.445, -11.905, 0), V(48.81, -11.905, 0)),  # 7
    Part.LineSegment(V(48.81, -11.905, 0), V(48.81, -10.635, 0)),  # 8
    Part.LineSegment(V(48.81, -10.635, 0), V(5.715, -10.635, 0)),  # 9
], False)
sketch10.addConstraint([
    Sketcher.Constraint("Coincident", 0, 2, 1, 1),
    Sketcher.Constraint("Coincident", 1, 2, 2, 1),
    Sketcher.Constraint("Coincident", 2, 2, 3, 1),
    Sketcher.Constraint("Coincident", 3, 2, 4, 1),
    Sketcher.Constraint("Coincident", 4, 2, 5, 1),
    Sketcher.Constraint("Coincident", 5, 2, 6, 1),
    Sketcher.Constraint("Coincident", 6, 2, 7, 1),
    Sketcher.Constraint("Coincident", 7, 2, 8, 1),
    Sketcher.Constraint("Coincident", 8, 2, 9, 1),
    Sketcher.Constraint("Coincident", 9, 2, 0, 1),
    Sketcher.Constraint("Vertical", 0),
    Sketcher.Constraint("Horizontal", 1),
    Sketcher.Constraint("Vertical", 2),
    Sketcher.Constraint("Horizontal", 3),
    Sketcher.Constraint("Vertical", 4),
    Sketcher.Constraint("Horizontal", 5),
    Sketcher.Constraint("Vertical", 6),
    Sketcher.Constraint("Horizontal", 7),
    Sketcher.Constraint("Vertical", 8),
    Sketcher.Constraint("Horizontal", 9),
    Sketcher.Constraint("Equal", 3, 8),
    Sketcher.Constraint("DistanceX", 3, 1, 3, 2, Q("0.05 in")),
    Sketcher.Constraint("DistanceY", 1, 2, 4, 2, Q("0.05 in")),
    Sketcher.Constraint("DistanceX", 5, 2, 0, 2, Q("0.05 in")),
    Sketcher.Constraint("DistanceX", -1, 1, 0, 2, Q("0.225 in")),
    Sketcher.Constraint("DistanceY", 6, 2, 2, 2, Q("0.275 in")),
    Sketcher.Constraint("DistanceX", 7, 2, 2, 2, Q("0.125 in")),
    Sketcher.Constraint("DistanceX", 1, 1, 1, 2, Q("46.27 mm")),
    Sketcher.Constraint("DistanceY", 0, 1, 0, 2, Q("21.27 mm")),
    Sketcher.Constraint("DistanceY", -1, 1, 0, 2, Q("10.635 mm")),
])
pad7 = body.newObject("PartDesign::Pad", "Pad006")
pad7.Profile = sketch10
pad7.Length = Q("0.125 in")

doc.recompute()
